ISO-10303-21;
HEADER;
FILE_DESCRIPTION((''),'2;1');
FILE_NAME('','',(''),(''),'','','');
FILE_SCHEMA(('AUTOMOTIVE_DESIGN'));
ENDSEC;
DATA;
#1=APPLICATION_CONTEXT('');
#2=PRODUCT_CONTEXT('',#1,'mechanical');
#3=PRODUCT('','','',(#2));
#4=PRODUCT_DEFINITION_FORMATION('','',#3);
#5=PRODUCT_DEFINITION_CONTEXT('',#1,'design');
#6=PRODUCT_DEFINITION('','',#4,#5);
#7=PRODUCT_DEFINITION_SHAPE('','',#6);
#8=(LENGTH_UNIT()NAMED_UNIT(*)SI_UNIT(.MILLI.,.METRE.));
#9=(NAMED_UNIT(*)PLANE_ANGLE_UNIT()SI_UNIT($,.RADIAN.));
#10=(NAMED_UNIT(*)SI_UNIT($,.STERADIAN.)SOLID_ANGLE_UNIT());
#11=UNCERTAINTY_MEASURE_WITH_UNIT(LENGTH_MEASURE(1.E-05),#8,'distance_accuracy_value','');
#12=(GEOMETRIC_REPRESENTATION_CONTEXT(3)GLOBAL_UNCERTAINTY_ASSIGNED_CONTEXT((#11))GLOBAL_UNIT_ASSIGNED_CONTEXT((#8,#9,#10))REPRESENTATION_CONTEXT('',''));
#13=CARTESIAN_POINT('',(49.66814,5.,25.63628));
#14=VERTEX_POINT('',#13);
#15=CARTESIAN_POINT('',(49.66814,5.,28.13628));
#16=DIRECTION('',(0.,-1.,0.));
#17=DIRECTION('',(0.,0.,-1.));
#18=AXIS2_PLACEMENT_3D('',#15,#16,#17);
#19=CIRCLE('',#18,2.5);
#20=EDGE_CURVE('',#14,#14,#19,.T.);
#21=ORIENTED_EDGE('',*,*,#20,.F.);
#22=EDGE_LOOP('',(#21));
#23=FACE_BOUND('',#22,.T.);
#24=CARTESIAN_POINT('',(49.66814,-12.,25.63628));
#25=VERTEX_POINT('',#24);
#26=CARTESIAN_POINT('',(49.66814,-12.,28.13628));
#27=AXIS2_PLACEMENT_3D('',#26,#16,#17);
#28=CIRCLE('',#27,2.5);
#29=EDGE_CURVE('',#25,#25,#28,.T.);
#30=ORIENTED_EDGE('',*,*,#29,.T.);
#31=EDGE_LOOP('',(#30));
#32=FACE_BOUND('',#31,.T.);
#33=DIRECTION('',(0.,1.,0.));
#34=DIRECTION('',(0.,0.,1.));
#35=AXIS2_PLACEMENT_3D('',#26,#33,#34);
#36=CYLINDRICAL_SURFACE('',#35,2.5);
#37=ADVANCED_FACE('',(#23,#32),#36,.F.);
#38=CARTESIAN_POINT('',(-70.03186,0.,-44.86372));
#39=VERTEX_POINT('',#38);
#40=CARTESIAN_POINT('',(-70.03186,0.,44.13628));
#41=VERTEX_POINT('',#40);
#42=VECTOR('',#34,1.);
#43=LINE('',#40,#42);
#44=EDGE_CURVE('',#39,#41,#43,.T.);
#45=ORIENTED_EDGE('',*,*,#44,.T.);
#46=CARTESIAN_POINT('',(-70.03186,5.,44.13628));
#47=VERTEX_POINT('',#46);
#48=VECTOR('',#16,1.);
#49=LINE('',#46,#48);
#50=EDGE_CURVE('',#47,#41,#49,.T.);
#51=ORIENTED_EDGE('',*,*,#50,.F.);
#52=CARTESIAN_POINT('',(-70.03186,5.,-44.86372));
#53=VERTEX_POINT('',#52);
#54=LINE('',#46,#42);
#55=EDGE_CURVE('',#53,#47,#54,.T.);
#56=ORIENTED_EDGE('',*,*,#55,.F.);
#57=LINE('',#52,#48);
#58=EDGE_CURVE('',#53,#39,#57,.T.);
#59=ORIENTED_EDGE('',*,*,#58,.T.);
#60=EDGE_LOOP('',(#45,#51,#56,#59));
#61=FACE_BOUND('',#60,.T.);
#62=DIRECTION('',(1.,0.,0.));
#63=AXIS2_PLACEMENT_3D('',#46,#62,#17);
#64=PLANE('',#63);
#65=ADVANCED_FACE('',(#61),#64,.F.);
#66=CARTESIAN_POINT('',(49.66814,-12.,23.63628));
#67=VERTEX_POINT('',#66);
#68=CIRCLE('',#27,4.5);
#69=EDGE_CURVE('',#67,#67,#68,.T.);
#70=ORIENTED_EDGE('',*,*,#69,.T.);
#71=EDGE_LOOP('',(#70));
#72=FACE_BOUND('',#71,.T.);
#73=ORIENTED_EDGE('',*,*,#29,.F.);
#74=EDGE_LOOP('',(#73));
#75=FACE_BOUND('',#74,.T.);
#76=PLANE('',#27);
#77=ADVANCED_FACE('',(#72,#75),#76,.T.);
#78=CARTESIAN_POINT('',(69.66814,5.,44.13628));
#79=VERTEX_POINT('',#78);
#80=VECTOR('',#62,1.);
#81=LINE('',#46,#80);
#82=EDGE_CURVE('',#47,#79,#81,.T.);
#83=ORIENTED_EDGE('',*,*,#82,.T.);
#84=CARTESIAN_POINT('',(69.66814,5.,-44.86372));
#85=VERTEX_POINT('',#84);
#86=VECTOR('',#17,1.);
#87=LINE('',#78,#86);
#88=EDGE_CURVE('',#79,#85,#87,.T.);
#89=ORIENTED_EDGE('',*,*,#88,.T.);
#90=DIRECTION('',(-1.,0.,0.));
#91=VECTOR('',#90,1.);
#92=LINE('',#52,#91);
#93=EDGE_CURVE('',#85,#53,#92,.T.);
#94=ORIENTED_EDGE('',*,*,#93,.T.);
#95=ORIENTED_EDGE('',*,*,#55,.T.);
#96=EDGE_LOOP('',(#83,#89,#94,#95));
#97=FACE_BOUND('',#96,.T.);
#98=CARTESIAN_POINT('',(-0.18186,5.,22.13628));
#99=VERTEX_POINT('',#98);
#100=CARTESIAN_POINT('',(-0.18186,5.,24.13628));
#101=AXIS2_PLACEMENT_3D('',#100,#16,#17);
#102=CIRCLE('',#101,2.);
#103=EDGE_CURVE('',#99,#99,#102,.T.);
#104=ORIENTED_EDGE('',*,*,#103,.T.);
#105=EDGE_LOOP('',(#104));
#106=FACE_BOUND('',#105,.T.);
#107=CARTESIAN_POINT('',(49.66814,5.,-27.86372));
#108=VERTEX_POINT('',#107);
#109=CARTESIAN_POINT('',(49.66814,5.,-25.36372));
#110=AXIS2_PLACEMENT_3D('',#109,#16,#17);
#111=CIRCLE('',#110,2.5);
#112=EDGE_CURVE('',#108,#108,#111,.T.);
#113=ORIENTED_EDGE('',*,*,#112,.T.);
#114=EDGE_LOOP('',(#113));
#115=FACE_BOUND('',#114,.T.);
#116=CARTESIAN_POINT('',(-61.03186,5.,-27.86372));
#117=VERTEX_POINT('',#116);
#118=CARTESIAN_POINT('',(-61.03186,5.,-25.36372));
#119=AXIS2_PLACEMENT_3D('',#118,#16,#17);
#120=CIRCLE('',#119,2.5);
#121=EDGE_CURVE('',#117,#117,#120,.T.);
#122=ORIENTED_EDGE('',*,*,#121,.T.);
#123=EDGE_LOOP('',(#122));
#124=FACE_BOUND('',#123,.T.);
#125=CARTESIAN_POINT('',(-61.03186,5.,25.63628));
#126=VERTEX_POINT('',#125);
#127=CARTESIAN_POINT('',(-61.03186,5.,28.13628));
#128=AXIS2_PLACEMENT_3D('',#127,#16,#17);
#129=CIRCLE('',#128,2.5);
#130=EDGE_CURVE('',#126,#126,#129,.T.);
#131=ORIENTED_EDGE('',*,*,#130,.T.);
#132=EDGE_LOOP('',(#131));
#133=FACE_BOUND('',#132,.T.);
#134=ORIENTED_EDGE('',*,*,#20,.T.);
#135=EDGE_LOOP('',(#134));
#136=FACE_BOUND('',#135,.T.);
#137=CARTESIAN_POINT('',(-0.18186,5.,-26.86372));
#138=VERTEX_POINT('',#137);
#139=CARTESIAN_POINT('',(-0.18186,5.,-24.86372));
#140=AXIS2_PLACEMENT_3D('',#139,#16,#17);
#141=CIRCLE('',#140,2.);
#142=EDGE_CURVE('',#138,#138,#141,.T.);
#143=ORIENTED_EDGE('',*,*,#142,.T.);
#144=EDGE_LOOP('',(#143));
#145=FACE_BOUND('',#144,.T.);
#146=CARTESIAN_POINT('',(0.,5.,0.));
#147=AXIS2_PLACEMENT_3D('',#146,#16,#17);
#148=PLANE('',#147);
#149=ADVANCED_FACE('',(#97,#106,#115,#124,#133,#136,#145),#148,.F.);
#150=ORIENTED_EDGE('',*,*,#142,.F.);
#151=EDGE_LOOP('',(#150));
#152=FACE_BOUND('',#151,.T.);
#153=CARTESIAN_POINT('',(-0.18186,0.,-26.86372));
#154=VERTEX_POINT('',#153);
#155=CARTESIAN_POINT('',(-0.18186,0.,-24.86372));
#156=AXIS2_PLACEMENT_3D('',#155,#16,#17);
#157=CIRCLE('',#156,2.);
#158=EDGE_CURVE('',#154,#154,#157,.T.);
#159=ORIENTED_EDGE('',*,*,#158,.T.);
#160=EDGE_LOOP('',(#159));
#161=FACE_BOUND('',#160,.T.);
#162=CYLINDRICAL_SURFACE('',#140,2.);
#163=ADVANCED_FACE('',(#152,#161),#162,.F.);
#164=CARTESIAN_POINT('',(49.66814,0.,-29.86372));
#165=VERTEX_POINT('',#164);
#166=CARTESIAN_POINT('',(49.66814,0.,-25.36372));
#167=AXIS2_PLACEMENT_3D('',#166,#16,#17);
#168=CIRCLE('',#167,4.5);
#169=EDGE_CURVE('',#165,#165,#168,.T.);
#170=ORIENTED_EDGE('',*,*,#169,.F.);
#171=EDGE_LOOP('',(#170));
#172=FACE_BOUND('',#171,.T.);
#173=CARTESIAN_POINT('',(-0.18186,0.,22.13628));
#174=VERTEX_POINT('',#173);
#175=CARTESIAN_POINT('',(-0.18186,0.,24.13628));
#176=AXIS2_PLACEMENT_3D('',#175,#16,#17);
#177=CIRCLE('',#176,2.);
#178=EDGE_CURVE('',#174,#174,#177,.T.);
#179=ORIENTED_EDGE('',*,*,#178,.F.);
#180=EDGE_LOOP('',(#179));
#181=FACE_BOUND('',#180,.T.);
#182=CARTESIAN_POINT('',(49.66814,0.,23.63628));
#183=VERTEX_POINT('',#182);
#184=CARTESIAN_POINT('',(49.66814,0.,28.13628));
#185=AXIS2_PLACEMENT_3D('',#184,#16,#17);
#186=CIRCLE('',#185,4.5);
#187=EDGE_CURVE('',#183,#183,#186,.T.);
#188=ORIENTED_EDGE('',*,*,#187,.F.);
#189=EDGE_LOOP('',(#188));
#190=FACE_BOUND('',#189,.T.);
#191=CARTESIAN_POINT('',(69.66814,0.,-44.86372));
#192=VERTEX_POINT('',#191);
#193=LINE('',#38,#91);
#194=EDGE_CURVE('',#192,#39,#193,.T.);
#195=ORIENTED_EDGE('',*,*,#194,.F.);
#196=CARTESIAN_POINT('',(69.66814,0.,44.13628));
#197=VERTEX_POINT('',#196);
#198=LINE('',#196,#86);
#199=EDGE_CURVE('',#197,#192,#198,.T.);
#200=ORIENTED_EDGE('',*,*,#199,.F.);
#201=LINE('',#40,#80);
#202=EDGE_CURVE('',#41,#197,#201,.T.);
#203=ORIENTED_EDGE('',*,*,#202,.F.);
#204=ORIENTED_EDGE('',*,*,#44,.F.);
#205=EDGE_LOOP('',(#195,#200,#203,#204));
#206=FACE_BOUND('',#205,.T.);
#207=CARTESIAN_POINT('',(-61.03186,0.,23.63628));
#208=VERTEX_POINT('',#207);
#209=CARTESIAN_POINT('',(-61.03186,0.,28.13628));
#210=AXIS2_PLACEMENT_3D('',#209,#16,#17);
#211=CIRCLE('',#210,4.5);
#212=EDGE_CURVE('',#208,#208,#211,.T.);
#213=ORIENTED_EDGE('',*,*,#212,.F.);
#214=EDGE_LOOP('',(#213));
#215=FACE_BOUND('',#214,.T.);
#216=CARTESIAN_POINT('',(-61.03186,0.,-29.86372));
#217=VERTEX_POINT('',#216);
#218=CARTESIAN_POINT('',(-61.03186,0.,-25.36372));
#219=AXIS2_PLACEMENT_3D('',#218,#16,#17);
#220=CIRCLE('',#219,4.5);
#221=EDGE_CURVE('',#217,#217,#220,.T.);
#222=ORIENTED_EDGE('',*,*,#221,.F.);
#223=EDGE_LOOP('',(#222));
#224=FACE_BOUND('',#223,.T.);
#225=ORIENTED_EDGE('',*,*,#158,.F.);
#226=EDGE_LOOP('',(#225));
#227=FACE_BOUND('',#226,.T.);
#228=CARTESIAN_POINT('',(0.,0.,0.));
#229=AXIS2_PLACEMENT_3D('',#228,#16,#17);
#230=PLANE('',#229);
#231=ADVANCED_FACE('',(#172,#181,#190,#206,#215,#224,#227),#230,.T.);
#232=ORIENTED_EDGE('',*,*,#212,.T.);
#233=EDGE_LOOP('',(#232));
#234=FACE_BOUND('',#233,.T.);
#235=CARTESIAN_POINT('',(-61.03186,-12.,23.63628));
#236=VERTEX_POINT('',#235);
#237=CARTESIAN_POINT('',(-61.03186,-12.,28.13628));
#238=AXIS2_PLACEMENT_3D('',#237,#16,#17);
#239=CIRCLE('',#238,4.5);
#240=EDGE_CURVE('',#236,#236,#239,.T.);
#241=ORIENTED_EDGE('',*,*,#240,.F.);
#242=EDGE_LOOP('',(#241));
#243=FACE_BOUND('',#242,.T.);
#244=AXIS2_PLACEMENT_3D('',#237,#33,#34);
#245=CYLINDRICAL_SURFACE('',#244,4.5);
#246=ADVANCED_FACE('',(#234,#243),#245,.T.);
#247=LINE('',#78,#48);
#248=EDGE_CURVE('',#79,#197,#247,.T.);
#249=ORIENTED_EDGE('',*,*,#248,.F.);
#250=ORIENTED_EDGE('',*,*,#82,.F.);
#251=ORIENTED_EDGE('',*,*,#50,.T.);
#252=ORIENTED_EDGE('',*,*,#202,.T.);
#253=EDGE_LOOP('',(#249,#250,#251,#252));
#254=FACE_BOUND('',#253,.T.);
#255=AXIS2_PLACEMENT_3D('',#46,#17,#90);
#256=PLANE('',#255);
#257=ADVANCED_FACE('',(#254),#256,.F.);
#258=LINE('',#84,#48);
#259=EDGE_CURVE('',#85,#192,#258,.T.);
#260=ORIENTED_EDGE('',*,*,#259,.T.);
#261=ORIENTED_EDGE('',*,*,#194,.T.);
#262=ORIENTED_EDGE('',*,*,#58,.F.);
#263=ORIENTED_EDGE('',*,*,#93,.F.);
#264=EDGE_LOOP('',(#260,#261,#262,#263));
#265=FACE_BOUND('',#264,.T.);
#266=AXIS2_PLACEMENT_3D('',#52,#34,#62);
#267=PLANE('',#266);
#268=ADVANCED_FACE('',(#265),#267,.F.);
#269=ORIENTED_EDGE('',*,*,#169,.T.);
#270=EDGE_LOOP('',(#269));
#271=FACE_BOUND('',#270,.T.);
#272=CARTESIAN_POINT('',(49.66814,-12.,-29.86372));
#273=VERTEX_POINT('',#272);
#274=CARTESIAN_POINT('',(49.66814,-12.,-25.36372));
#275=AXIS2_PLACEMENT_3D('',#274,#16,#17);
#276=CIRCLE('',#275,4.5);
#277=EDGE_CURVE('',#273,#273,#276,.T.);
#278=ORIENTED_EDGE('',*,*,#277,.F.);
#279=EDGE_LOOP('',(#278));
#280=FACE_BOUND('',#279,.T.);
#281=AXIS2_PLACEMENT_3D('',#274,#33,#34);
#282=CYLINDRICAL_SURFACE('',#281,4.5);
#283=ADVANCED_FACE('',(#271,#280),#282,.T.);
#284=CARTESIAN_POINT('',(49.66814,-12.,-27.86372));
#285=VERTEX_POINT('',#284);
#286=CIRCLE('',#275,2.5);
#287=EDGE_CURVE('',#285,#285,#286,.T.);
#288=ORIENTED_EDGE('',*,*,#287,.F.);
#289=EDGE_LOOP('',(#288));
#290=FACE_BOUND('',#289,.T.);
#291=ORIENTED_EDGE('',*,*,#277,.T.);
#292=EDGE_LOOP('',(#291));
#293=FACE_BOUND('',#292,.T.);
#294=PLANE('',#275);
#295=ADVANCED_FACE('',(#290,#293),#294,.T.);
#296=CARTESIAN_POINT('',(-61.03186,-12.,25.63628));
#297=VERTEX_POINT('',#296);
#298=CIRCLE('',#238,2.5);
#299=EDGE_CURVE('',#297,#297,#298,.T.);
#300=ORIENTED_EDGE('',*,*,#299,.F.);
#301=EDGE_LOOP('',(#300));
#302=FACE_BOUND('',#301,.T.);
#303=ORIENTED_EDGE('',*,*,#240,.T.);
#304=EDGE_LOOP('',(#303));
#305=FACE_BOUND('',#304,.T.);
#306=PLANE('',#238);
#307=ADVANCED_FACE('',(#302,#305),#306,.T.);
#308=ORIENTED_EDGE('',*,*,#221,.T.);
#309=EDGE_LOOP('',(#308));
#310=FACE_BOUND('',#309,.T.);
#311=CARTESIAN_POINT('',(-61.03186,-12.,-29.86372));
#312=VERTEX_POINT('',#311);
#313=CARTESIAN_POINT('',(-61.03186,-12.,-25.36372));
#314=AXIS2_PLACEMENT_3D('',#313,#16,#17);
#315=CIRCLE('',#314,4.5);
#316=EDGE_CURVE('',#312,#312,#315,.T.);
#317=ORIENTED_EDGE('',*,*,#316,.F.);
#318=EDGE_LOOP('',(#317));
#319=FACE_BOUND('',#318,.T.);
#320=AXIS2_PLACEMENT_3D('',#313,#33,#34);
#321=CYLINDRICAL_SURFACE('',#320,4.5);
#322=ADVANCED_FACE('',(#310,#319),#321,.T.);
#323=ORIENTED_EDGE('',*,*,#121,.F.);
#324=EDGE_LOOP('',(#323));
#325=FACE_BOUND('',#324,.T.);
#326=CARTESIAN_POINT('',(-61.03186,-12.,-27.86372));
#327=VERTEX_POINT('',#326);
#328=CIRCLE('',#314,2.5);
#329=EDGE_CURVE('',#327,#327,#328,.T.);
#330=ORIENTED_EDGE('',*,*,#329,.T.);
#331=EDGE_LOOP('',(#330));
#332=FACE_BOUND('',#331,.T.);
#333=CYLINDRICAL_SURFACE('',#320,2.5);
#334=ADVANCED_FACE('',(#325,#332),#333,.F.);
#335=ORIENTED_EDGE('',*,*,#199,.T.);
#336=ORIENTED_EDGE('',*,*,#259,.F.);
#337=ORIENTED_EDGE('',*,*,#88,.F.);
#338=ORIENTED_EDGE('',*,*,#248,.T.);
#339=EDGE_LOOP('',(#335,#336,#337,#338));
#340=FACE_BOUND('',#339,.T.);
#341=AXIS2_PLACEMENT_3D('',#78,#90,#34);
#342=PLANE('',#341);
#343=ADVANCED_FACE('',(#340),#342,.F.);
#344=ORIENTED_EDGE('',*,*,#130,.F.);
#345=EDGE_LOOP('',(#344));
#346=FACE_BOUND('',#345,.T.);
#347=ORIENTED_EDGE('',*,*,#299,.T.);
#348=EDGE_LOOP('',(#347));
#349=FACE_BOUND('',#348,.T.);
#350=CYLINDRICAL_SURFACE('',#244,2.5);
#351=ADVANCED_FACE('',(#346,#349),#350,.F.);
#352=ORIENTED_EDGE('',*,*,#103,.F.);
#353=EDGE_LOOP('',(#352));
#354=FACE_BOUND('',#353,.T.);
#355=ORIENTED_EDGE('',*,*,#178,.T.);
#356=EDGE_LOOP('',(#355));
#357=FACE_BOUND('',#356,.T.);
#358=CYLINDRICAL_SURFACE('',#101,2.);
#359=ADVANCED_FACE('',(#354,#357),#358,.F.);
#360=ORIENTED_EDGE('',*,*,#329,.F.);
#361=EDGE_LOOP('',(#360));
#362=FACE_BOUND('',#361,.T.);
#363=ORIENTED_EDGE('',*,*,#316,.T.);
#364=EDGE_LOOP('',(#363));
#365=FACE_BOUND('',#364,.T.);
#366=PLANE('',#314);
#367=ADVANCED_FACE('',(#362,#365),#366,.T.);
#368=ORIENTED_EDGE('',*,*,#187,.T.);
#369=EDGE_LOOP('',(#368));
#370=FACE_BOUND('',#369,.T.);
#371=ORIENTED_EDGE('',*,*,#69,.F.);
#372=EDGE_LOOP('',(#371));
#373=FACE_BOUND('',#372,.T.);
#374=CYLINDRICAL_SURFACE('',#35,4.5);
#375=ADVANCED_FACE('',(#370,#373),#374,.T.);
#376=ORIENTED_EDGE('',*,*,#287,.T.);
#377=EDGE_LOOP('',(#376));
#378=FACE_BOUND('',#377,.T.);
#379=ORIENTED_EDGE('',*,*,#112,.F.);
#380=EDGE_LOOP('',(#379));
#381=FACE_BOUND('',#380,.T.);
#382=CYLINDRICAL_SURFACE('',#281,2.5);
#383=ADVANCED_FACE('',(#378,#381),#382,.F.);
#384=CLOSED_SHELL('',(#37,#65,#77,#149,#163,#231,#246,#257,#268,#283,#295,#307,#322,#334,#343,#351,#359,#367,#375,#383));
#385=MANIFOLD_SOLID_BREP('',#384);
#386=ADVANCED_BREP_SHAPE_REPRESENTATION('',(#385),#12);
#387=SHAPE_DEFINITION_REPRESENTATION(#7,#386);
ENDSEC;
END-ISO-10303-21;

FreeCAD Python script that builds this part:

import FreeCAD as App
import Part
import Sketcher
from FreeCAD import Vector
Q = App.Units.Quantity

doc = App.newDocument("Part")
body = doc.addObject("PartDesign::Body", "Body")

# Sketch on XZ plane
sketch1 = body.newObject("Sketcher::SketchObject", "Sketch")
sketch1.AttachmentSupport = (doc.getObject("XZ_Plane"), [""])
sketch1.MapMode = "FlatFace"
sketch1.addGeometry(Part.LineSegment(Vector(-70, -45, 0), Vector(-70, 44, 0)), False)
sketch1.addGeometry(Part.LineSegment(Vector(-70, 44, 0), Vector(70, 44, 0)), False)
sketch1.addGeometry(Part.LineSegment(Vector(70, 44, 0), Vector(70, -45, 0)), False)
sketch1.addGeometry(Part.LineSegment(Vector(70, -45, 0), Vector(-70, -45, 0)), False)
sketch1.addConstraint(Sketcher.Constraint("Coincident", 0, 2, 1, 1))
sketch1.addConstraint(Sketcher.Constraint("Coincident", 1, 2, 2, 1))
sketch1.addConstraint(Sketcher.Constraint("Coincident", 2, 2, 3, 1))
sketch1.addConstraint(Sketcher.Constraint("Coincident", 3, 2, 0, 1))
sketch1.addConstraint(Sketcher.Constraint("Vertical", 0))
sketch1.addConstraint(Sketcher.Constraint("Horizontal", 1))
sketch1.addConstraint(Sketcher.Constraint("Vertical", 2))
sketch1.addConstraint(Sketcher.Constraint("Horizontal", 3))
sketch1.addConstraint(Sketcher.Constraint("DistanceY", 0, 1, 0, 2, Q("89 mm")))
sketch1.addConstraint(Sketcher.Constraint("DistanceX", 1, 1, 1, 2, Q("139.7 mm")))
sketch1.addConstraint(Sketcher.Constraint("DistanceX", 0, 2, -1, 1, Q("70.03186 mm")))
sketch1.addConstraint(Sketcher.Constraint("DistanceY", -1, 1, 0, 2, Q("44.13628 mm")))
pad1 = body.newObject("PartDesign::Pad", "Pad")
pad1.Profile = sketch1
pad1.Length = 5
pad1.Reversed = True

# Sketch on XZ plane
sketch2 = body.newObject("Sketcher::SketchObject", "Sketch001")
sketch2.AttachmentSupport = (doc.getObject("XZ_Plane"), [""])
sketch2.MapMode = "FlatFace"
sketch2.addGeometry(Part.Circle(Vector(-61, 28.1, 0), Vector(0, 0, 1), 4.5), False)
sketch2.addGeometry(Part.Circle(Vector(-61, 28.1, 0), Vector(0, 0, 1), 2.5), False)
sketch2.addGeometry(Part.Circle(Vector(49.7, 28.1, 0), Vector(0, 0, 1), 4.5), False)
sketch2.addGeometry(Part.Circle(Vector(49.7, 28.1, 0), Vector(0, 0, 1), 2.5), False)
sketch2.addGeometry(Part.Circle(Vector(-61, -25.4, 0), Vector(0, 0, 1), 4.5), False)
sketch2.addGeometry(Part.Circle(Vector(-61, -25.4, 0), Vector(0, 0, 1), 2.5), False)
sketch2.addGeometry(Part.Circle(Vector(49.7, -25.4, 0), Vector(0, 0, 1), 4.5), False)
sketch2.addGeometry(Part.Circle(Vector(49.7, -25.4, 0), Vector(0, 0, 1), 2.5), False)
sketch2.addConstraint(Sketcher.Constraint("Coincident", 1, 3, 0, 3))
sketch2.addConstraint(Sketcher.Constraint("Coincident", 3, 3, 2, 3))
sketch2.addConstraint(Sketcher.Constraint("Coincident", 5, 3, 4, 3))
sketch2.addConstraint(Sketcher.Constraint("Coincident", 7, 3, 6, 3))
sketch2.addConstraint(Sketcher.Constraint("Equal", 0, 2))
sketch2.addConstraint(Sketcher.Constraint("Equal", 1, 3))
sketch2.addConstraint(Sketcher.Constraint("Equal", 2, 4))
sketch2.addConstraint(Sketcher.Constraint("Equal", 3, 5))
sketch2.addConstraint(Sketcher.Constraint("Equal", 4, 6))
sketch2.addConstraint(Sketcher.Constraint("Equal", 5, 7))
sketch2.addConstraint(Sketcher.Constraint("Horizontal", 1, 3, 2, 3))
sketch2.addConstraint(Sketcher.Constraint("Horizontal", 5, 3, 6, 3))
sketch2.addConstraint(Sketcher.Constraint("Vertical", 1, 3, 4, 3))
sketch2.addConstraint(Sketcher.Constraint("Vertical", 3, 3, 6, 3))
sketch2.addConstraint(Sketcher.Constraint("Diameter", 0, Q("9 mm")))
sketch2.addConstraint(Sketcher.Constraint("Diameter", 1, Q("5 mm")))
sketch2.addConstraint(Sketcher.Constraint("DistanceX", 0, 3, 2, 3, Q("110.7 mm")))
sketch2.addConstraint(Sketcher.Constraint("DistanceY", 4, 3, 0, 3, Q("53.5 mm")))
sketch2.addConstraint(Sketcher.Constraint("DistanceX", 0, 3, -1, 1, Q("61.03186 mm")))
sketch2.addConstraint(Sketcher.Constraint("DistanceY", -1, 1, 0, 3, Q("28.13628 mm")))
pad2 = body.newObject("PartDesign::Pad", "Pad001")
pad2.Profile = sketch2
pad2.Length = 12

# Sketch on XZ plane
sketch3 = body.newObject("Sketcher::SketchObject", "Sketch002")
sketch3.AttachmentSupport = (doc.getObject("XZ_Plane"), [""])
sketch3.MapMode = "FlatFace"
sketch3.addGeometry(Part.Circle(Vector(-0.2, 24.1, 0), Vector(0, 0, 1), 2), False)
sketch3.addGeometry(Part.Circle(Vector(-0.2, -24.9, 0), Vector(0, 0, 1), 2), False)
sketch3.addConstraint(Sketcher.Constraint("Equal", 0, 1))
sketch3.addConstraint(Sketcher.Constraint("Vertical", 0, 3, 1, 3))
sketch3.addConstraint(Sketcher.Constraint("Diameter", 0, Q("4 mm")))
sketch3.addConstraint(Sketcher.Constraint("DistanceY", 1, 3, 0, 3, Q("49 mm")))
sketch3.addConstraint(Sketcher.Constraint("DistanceX", 0, 3, -1, 1, Q("0.18186 mm")))
sketch3.addConstraint(Sketcher.Constraint("DistanceY", -1, 1, 0, 3, Q("24.13628 mm")))
pocket1 = body.newObject("PartDesign::Pocket", "Pocket")
pocket1.Profile = sketch3
pocket1.Length = 5

# Sketch on XZ plane
sketch4 = body.newObject("Sketcher::SketchObject", "Sketch003")
sketch4.AttachmentSupport = (doc.getObject("XZ_Plane"), [""])
sketch4.MapMode = "FlatFace"
sketch4.AttachmentOffset = App.Placement(Vector(0, 0, -10), App.Rotation())
sketch4.addGeometry(Part.Circle(Vector(-61, 28.1, 0), Vector(0, 0, 1), 2.5), False)
sketch4.addGeometry(Part.Circle(Vector(-61, -25.4, 0), Vector(0, 0, 1), 2.5), False)
sketch4.addGeometry(Part.Circle(Vector(49.7, -25.4, 0), Vector(0, 0, 1), 2.5), False)
sketch4.addGeometry(Part.Circle(Vector(49.7, 28.1, 0), Vector(0, 0, 1), 2.5), False)
sketch4.addConstraint(Sketcher.Constraint("Equal", 0, 1))
sketch4.addConstraint(Sketcher.Constraint("Equal", 1, 2))
sketch4.addConstraint(Sketcher.Constraint("Equal", 2, 3))
sketch4.addConstraint(Sketcher.Constraint("Horizontal", 1, 3, 2, 3))
sketch4.addConstraint(Sketcher.Constraint("Horizontal", 0, 3, 3, 3))
sketch4.addConstraint(Sketcher.Constraint("Vertical", 0, 3, 1, 3))
sketch4.addConstraint(Sketcher.Constraint("Vertical", 2, 3, 3, 3))
sketch4.addConstraint(Sketcher.Constraint("Diameter", 0, Q("5 mm")))
sketch4.addConstraint(Sketcher.Constraint("DistanceY", 1, 3, 0, 3, Q("53.5 mm")))
sketch4.addConstraint(Sketcher.Constraint("DistanceX", 1, 3, 2, 3, Q("110.7 mm")))
sketch4.addConstraint(Sketcher.Constraint("DistanceX", 0, 3, -1, 1, Q("61.03186 mm")))
sketch4.addConstraint(Sketcher.Constraint("DistanceY", -1, 1, 0, 3, Q("28.13628 mm")))
pocket2 = body.newObject("PartDesign::Pocket", "Pocket001")
pocket2.Profile = sketch4
pocket2.Length = 10
pocket2.Reversed = True

doc.recompute()
